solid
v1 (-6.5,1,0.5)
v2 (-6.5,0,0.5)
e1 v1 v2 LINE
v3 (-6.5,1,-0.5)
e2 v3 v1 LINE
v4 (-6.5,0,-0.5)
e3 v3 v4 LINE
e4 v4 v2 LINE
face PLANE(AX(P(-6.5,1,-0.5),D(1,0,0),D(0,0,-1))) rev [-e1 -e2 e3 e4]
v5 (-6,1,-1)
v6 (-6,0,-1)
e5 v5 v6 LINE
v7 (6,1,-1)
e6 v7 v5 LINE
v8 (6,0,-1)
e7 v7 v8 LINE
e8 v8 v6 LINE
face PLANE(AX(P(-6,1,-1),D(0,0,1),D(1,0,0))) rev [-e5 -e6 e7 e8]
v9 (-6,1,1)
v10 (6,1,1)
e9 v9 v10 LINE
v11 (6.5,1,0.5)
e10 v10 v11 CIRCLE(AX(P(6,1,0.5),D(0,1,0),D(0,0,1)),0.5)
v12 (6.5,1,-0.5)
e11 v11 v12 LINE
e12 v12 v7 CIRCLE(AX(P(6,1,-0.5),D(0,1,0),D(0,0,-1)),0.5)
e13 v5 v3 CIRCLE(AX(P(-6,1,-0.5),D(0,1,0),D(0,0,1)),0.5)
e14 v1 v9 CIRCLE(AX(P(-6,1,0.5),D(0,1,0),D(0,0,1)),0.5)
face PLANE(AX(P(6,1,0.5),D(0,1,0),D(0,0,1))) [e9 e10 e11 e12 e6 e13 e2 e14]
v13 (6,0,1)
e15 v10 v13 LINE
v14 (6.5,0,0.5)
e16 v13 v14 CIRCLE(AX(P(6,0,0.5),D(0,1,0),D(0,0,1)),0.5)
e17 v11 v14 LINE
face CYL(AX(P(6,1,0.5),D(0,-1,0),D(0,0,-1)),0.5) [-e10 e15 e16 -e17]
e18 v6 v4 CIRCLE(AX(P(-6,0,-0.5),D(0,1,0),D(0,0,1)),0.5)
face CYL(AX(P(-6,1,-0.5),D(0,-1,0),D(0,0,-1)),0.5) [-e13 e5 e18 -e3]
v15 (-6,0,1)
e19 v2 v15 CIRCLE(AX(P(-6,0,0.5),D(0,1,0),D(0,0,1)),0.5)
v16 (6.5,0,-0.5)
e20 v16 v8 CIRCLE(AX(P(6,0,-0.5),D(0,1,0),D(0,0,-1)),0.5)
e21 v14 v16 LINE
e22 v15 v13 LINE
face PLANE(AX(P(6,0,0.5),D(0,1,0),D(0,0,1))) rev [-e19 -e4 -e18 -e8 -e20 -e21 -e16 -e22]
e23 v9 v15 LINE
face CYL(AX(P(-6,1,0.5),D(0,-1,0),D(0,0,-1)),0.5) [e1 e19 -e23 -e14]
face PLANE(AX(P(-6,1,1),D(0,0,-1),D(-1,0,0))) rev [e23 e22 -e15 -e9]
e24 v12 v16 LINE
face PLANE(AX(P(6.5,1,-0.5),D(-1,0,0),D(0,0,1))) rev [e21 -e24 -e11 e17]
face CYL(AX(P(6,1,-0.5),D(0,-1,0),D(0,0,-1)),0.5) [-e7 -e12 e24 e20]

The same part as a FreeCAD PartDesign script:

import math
import FreeCAD as App
import Part
import Sketcher

V = App.Vector
Q = App.Units.Quantity

doc = App.newDocument("Part")
body = doc.addObject("PartDesign::Body", "Body")

# Sketch on XZ plane
sketch1 = body.newObject("Sketcher::SketchObject", "Sketch")
sketch1.AttachmentSupport = (doc.getObject("XZ_Plane"), [""])
sketch1.MapMode = "FlatFace"
sketch1.addGeometry(Part.LineSegment(V(6, -1, 0), V(-6, -1, 0)), False)
sketch1.addGeometry(Part.ArcOfCircle(Part.Circle(V(-6, -0.5, 0), V(0, 0, 1), 0.5), math.radians(180), math.radians(270)), False)
sketch1.addGeometry(Part.LineSegment(V(-6.5, -0.5, 0), V(-6.5, 0.5, 0)), False)
sketch1.addGeometry(Part.ArcOfCircle(Part.Circle(V(-6, 0.5, 0), V(0, 0, 1), 0.5), math.radians(90), math.radians(180)), False)
sketch1.addGeometry(Part.LineSegment(V(-6, 1, 0), V(6, 1, 0)), False)
sketch1.addGeometry(Part.ArcOfCircle(Part.Circle(V(6, 0.5, 0), V(0, 0, 1), 0.5), math.radians(0), math.radians(90)), False)
sketch1.addGeometry(Part.LineSegment(V(6.5, 0.5, 0), V(6.5, -0.5, 0)), False)
sketch1.addGeometry(Part.ArcOfCircle(Part.Circle(V(6, -0.5, 0), V(0, 0, 1), 0.5), math.radians(-90), math.radians(0)), False)
sketch1.addConstraint(Sketcher.Constraint("Tangent", 0, 2, 1, 2))
sketch1.addConstraint(Sketcher.Constraint("Tangent", 1, 1, 2, 1))
sketch1.addConstraint(Sketcher.Constraint("Tangent", 2, 2, 3, 2))
sketch1.addConstraint(Sketcher.Constraint("Tangent", 3, 1, 4, 1))
sketch1.addConstraint(Sketcher.Constraint("Tangent", 4, 2, 5, 2))
sketch1.addConstraint(Sketcher.Constraint("Tangent", 5, 1, 6, 1))
sketch1.addConstraint(Sketcher.Constraint("Tangent", 6, 2, 7, 2))
sketch1.addConstraint(Sketcher.Constraint("Tangent", 7, 1, 0, 1))
sketch1.addConstraint(Sketcher.Constraint("Horizontal", 0))
sketch1.addConstraint(Sketcher.Constraint("Vertical", 2))
sketch1.addConstraint(Sketcher.Constraint("Horizontal", 4))
sketch1.addConstraint(Sketcher.Constraint("Vertical", 6))
sketch1.addConstraint(Sketcher.Constraint("Equal", 1, 3))
sketch1.addConstraint(Sketcher.Constraint("Equal", 3, 5))
sketch1.addConstraint(Sketcher.Constraint("Equal", 5, 7))
sketch1.addConstraint(Sketcher.Constraint("Symmetric", 1, 3, 5, 3, -1, 1))
sketch1.addConstraint(Sketcher.Constraint("Radius", 1, Q("0.5 mm")))
sketch1.addConstraint(Sketcher.Constraint("DistanceX", 0, 2, 0, 1, Q("12 mm")))
sketch1.addConstraint(Sketcher.Constraint("DistanceY", 2, 1, 2, 2, Q("1 mm")))
pad1 = body.newObject("PartDesign::Pad", "Pad")
pad1.Profile = sketch1
pad1.Length = 1
pad1.Reversed = True

doc.recompute()
